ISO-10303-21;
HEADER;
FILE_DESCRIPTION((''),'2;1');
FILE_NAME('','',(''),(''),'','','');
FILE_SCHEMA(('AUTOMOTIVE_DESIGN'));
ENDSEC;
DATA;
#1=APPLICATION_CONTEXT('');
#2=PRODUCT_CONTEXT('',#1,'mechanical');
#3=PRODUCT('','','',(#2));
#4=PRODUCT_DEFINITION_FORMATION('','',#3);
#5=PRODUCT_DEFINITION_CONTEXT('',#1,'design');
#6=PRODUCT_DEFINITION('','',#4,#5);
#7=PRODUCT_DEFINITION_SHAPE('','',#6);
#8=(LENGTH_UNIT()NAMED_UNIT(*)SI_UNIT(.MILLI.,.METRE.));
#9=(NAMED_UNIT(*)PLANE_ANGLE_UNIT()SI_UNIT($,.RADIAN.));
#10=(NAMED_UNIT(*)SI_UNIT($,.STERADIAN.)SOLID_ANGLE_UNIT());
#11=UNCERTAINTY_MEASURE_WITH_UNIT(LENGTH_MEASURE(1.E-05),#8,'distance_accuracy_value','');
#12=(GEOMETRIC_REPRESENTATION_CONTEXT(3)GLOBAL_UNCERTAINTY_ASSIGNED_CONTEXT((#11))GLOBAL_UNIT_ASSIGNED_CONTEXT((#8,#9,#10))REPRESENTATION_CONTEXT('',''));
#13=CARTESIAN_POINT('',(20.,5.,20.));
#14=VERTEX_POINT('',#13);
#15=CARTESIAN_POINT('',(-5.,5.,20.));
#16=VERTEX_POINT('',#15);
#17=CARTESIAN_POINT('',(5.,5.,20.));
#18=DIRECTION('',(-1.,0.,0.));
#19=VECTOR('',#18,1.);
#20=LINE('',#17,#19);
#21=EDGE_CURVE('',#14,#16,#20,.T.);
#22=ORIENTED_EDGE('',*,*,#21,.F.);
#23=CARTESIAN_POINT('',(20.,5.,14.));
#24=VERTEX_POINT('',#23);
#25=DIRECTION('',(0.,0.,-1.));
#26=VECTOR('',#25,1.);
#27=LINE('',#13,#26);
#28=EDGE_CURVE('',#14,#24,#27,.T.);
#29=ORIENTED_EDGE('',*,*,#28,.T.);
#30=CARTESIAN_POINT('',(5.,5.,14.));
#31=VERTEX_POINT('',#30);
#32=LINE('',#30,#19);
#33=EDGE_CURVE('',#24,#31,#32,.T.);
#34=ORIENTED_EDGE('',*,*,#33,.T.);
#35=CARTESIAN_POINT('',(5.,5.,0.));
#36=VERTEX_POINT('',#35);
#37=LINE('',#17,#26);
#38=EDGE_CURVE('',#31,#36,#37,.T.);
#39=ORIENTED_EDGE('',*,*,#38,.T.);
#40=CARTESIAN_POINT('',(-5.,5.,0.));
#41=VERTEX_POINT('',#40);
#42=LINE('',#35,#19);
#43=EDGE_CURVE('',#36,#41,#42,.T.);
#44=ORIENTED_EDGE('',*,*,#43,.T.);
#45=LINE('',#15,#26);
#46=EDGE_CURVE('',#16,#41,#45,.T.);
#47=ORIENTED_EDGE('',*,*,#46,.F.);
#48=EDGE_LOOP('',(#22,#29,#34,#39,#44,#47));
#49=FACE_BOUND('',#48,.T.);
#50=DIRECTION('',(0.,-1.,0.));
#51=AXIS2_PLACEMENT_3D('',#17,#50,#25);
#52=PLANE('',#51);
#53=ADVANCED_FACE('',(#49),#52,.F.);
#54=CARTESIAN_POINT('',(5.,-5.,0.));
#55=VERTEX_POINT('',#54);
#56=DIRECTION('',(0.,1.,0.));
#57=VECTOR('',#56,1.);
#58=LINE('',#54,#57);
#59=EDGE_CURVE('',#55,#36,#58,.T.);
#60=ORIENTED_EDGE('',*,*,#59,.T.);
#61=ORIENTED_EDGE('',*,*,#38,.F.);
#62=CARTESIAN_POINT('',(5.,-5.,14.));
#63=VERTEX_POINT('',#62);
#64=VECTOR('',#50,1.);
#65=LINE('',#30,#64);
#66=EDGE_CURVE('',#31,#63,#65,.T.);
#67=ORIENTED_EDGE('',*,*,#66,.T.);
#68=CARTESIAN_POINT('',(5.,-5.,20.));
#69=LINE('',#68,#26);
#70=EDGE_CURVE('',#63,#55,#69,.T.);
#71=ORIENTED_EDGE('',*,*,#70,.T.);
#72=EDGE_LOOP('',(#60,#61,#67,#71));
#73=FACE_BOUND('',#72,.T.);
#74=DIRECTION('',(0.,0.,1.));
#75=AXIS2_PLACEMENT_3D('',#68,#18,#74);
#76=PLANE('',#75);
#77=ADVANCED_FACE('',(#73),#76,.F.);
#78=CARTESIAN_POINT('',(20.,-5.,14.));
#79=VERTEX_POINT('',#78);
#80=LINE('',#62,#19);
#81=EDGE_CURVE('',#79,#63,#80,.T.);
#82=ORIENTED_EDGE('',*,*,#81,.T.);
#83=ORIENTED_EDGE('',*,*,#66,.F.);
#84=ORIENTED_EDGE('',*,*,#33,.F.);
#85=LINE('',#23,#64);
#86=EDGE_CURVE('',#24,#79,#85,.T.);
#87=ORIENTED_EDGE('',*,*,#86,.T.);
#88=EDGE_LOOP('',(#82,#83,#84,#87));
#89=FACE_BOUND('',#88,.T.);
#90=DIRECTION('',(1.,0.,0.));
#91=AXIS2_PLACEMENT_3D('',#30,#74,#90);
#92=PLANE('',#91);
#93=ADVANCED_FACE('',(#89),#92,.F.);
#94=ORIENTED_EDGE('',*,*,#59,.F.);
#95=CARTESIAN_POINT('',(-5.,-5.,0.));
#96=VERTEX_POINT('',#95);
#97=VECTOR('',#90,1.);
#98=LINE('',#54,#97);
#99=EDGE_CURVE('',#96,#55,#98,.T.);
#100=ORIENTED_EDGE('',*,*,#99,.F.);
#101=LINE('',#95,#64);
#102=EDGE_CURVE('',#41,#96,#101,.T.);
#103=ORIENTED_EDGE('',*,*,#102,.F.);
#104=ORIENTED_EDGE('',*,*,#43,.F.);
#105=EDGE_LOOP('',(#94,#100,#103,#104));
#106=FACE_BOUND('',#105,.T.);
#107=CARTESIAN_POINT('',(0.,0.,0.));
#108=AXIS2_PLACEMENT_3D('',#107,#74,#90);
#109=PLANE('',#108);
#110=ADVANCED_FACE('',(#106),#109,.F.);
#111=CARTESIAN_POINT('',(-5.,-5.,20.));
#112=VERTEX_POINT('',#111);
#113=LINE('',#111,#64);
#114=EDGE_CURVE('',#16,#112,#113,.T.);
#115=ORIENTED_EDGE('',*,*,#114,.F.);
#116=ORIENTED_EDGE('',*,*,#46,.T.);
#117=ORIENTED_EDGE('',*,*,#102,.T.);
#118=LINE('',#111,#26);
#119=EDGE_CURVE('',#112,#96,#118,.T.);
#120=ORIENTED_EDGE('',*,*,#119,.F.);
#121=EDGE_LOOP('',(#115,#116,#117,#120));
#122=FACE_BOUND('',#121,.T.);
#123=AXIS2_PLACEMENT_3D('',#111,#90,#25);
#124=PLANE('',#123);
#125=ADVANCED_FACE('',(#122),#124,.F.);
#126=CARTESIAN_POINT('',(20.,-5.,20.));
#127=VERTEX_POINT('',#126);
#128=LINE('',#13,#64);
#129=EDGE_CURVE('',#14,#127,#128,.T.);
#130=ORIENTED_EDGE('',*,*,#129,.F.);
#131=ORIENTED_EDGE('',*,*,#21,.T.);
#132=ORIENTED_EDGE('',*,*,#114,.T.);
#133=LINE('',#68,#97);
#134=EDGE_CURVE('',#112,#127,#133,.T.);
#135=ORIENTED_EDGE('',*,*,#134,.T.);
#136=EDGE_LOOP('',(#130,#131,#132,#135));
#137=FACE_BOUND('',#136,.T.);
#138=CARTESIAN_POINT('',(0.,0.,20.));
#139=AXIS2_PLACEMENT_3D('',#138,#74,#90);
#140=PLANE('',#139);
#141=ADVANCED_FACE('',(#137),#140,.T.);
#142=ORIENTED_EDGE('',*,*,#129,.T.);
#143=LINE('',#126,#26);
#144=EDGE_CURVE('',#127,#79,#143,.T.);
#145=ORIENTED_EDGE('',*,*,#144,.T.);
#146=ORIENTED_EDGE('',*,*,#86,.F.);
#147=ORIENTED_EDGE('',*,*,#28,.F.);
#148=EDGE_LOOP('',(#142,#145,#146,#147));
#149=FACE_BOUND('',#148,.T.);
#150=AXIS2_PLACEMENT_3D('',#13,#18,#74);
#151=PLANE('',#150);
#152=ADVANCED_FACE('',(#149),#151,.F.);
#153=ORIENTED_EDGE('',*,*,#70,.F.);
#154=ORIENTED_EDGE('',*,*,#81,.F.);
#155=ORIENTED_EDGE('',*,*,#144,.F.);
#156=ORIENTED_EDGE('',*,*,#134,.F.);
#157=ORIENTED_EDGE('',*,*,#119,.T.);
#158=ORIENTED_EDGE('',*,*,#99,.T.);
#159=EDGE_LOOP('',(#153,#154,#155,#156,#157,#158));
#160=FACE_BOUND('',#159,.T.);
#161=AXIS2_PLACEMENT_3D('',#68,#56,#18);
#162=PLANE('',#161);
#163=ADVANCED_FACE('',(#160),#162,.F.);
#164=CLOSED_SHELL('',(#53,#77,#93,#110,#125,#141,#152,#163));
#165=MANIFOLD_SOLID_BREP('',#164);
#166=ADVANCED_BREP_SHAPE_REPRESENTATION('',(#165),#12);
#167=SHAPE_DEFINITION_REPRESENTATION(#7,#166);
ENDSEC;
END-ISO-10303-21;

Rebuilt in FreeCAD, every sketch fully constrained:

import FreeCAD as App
import Part
import Sketcher

V = App.Vector
Q = App.Units.Quantity


def add_polygon(sketch, points):
    """Adds a closed chain of lines whose ends are joined by coincident constraints."""
    first, n = sketch.GeometryCount, len(points)
    for a, b in zip(points, points[1:] + points[:1]):
        sketch.addGeometry(Part.LineSegment(App.Vector(*a, 0), App.Vector(*b, 0)), False)
    for i in range(n):
        sketch.addConstraint(Sketcher.Constraint("Coincident", first + i, 2, first + (i + 1) % n, 1))

doc = App.newDocument("Part")
body = doc.addObject("PartDesign::Body", "Body")

# Sketch on XY plane
sketch1 = body.newObject("Sketcher::SketchObject", "Sketch")
sketch1.AttachmentSupport = (doc.getObject("XY_Plane"), [""])
sketch1.MapMode = "FlatFace"
add_polygon(sketch1, [(-5, 5), (-5, -5), (5, -5), (5, 5)])  # lines 0-3
sketch1.addConstraint([
    Sketcher.Constraint("Vertical", 0),
    Sketcher.Constraint("Horizontal", 1),
    Sketcher.Constraint("Vertical", 2),
    Sketcher.Constraint("Horizontal", 3),
    Sketcher.Constraint("Symmetric", 0, 2, 2, 2, -1, 1),
    Sketcher.Constraint("Equal", 3, 0),
    Sketcher.Constraint("DistanceX", 1, 1, 1, 2, Q("10 mm")),
])
pad1 = body.newObject("PartDesign::Pad", "Pad")
pad1.Profile = sketch1
pad1.Length = 20

# Sketch on XZ plane
sketch2 = body.newObject("Sketcher::SketchObject", "Sketch001")
sketch2.AttachmentSupport = (doc.getObject("XZ_Plane"), [""])
sketch2.MapMode = "FlatFace"
add_polygon(sketch2, [(5, 14), (5, 20), (20, 20), (20, 14)])  # lines 0-3
sketch2.addConstraint([
    Sketcher.Constraint("Vertical", 0),
    Sketcher.Constraint("Horizontal", 1),
    Sketcher.Constraint("Vertical", 2),
    Sketcher.Constraint("Horizontal", 3),
    Sketcher.Constraint("DistanceX", 1, 1, 1, 2, Q("15 mm")),
    Sketcher.Constraint("DistanceY", 0, 1, 0, 2, Q("6 mm")),
    Sketcher.Constraint("DistanceX", -1, 1, 0, 2, Q("5 mm")),
    Sketcher.Constraint("DistanceY", -1, 1, 0, 2, Q("20 mm")),
])
pad2 = body.newObject("PartDesign::Pad", "Pad001")
pad2.Profile = sketch2
pad2.Length = 10
pad2.Midplane = True

doc.recompute()
